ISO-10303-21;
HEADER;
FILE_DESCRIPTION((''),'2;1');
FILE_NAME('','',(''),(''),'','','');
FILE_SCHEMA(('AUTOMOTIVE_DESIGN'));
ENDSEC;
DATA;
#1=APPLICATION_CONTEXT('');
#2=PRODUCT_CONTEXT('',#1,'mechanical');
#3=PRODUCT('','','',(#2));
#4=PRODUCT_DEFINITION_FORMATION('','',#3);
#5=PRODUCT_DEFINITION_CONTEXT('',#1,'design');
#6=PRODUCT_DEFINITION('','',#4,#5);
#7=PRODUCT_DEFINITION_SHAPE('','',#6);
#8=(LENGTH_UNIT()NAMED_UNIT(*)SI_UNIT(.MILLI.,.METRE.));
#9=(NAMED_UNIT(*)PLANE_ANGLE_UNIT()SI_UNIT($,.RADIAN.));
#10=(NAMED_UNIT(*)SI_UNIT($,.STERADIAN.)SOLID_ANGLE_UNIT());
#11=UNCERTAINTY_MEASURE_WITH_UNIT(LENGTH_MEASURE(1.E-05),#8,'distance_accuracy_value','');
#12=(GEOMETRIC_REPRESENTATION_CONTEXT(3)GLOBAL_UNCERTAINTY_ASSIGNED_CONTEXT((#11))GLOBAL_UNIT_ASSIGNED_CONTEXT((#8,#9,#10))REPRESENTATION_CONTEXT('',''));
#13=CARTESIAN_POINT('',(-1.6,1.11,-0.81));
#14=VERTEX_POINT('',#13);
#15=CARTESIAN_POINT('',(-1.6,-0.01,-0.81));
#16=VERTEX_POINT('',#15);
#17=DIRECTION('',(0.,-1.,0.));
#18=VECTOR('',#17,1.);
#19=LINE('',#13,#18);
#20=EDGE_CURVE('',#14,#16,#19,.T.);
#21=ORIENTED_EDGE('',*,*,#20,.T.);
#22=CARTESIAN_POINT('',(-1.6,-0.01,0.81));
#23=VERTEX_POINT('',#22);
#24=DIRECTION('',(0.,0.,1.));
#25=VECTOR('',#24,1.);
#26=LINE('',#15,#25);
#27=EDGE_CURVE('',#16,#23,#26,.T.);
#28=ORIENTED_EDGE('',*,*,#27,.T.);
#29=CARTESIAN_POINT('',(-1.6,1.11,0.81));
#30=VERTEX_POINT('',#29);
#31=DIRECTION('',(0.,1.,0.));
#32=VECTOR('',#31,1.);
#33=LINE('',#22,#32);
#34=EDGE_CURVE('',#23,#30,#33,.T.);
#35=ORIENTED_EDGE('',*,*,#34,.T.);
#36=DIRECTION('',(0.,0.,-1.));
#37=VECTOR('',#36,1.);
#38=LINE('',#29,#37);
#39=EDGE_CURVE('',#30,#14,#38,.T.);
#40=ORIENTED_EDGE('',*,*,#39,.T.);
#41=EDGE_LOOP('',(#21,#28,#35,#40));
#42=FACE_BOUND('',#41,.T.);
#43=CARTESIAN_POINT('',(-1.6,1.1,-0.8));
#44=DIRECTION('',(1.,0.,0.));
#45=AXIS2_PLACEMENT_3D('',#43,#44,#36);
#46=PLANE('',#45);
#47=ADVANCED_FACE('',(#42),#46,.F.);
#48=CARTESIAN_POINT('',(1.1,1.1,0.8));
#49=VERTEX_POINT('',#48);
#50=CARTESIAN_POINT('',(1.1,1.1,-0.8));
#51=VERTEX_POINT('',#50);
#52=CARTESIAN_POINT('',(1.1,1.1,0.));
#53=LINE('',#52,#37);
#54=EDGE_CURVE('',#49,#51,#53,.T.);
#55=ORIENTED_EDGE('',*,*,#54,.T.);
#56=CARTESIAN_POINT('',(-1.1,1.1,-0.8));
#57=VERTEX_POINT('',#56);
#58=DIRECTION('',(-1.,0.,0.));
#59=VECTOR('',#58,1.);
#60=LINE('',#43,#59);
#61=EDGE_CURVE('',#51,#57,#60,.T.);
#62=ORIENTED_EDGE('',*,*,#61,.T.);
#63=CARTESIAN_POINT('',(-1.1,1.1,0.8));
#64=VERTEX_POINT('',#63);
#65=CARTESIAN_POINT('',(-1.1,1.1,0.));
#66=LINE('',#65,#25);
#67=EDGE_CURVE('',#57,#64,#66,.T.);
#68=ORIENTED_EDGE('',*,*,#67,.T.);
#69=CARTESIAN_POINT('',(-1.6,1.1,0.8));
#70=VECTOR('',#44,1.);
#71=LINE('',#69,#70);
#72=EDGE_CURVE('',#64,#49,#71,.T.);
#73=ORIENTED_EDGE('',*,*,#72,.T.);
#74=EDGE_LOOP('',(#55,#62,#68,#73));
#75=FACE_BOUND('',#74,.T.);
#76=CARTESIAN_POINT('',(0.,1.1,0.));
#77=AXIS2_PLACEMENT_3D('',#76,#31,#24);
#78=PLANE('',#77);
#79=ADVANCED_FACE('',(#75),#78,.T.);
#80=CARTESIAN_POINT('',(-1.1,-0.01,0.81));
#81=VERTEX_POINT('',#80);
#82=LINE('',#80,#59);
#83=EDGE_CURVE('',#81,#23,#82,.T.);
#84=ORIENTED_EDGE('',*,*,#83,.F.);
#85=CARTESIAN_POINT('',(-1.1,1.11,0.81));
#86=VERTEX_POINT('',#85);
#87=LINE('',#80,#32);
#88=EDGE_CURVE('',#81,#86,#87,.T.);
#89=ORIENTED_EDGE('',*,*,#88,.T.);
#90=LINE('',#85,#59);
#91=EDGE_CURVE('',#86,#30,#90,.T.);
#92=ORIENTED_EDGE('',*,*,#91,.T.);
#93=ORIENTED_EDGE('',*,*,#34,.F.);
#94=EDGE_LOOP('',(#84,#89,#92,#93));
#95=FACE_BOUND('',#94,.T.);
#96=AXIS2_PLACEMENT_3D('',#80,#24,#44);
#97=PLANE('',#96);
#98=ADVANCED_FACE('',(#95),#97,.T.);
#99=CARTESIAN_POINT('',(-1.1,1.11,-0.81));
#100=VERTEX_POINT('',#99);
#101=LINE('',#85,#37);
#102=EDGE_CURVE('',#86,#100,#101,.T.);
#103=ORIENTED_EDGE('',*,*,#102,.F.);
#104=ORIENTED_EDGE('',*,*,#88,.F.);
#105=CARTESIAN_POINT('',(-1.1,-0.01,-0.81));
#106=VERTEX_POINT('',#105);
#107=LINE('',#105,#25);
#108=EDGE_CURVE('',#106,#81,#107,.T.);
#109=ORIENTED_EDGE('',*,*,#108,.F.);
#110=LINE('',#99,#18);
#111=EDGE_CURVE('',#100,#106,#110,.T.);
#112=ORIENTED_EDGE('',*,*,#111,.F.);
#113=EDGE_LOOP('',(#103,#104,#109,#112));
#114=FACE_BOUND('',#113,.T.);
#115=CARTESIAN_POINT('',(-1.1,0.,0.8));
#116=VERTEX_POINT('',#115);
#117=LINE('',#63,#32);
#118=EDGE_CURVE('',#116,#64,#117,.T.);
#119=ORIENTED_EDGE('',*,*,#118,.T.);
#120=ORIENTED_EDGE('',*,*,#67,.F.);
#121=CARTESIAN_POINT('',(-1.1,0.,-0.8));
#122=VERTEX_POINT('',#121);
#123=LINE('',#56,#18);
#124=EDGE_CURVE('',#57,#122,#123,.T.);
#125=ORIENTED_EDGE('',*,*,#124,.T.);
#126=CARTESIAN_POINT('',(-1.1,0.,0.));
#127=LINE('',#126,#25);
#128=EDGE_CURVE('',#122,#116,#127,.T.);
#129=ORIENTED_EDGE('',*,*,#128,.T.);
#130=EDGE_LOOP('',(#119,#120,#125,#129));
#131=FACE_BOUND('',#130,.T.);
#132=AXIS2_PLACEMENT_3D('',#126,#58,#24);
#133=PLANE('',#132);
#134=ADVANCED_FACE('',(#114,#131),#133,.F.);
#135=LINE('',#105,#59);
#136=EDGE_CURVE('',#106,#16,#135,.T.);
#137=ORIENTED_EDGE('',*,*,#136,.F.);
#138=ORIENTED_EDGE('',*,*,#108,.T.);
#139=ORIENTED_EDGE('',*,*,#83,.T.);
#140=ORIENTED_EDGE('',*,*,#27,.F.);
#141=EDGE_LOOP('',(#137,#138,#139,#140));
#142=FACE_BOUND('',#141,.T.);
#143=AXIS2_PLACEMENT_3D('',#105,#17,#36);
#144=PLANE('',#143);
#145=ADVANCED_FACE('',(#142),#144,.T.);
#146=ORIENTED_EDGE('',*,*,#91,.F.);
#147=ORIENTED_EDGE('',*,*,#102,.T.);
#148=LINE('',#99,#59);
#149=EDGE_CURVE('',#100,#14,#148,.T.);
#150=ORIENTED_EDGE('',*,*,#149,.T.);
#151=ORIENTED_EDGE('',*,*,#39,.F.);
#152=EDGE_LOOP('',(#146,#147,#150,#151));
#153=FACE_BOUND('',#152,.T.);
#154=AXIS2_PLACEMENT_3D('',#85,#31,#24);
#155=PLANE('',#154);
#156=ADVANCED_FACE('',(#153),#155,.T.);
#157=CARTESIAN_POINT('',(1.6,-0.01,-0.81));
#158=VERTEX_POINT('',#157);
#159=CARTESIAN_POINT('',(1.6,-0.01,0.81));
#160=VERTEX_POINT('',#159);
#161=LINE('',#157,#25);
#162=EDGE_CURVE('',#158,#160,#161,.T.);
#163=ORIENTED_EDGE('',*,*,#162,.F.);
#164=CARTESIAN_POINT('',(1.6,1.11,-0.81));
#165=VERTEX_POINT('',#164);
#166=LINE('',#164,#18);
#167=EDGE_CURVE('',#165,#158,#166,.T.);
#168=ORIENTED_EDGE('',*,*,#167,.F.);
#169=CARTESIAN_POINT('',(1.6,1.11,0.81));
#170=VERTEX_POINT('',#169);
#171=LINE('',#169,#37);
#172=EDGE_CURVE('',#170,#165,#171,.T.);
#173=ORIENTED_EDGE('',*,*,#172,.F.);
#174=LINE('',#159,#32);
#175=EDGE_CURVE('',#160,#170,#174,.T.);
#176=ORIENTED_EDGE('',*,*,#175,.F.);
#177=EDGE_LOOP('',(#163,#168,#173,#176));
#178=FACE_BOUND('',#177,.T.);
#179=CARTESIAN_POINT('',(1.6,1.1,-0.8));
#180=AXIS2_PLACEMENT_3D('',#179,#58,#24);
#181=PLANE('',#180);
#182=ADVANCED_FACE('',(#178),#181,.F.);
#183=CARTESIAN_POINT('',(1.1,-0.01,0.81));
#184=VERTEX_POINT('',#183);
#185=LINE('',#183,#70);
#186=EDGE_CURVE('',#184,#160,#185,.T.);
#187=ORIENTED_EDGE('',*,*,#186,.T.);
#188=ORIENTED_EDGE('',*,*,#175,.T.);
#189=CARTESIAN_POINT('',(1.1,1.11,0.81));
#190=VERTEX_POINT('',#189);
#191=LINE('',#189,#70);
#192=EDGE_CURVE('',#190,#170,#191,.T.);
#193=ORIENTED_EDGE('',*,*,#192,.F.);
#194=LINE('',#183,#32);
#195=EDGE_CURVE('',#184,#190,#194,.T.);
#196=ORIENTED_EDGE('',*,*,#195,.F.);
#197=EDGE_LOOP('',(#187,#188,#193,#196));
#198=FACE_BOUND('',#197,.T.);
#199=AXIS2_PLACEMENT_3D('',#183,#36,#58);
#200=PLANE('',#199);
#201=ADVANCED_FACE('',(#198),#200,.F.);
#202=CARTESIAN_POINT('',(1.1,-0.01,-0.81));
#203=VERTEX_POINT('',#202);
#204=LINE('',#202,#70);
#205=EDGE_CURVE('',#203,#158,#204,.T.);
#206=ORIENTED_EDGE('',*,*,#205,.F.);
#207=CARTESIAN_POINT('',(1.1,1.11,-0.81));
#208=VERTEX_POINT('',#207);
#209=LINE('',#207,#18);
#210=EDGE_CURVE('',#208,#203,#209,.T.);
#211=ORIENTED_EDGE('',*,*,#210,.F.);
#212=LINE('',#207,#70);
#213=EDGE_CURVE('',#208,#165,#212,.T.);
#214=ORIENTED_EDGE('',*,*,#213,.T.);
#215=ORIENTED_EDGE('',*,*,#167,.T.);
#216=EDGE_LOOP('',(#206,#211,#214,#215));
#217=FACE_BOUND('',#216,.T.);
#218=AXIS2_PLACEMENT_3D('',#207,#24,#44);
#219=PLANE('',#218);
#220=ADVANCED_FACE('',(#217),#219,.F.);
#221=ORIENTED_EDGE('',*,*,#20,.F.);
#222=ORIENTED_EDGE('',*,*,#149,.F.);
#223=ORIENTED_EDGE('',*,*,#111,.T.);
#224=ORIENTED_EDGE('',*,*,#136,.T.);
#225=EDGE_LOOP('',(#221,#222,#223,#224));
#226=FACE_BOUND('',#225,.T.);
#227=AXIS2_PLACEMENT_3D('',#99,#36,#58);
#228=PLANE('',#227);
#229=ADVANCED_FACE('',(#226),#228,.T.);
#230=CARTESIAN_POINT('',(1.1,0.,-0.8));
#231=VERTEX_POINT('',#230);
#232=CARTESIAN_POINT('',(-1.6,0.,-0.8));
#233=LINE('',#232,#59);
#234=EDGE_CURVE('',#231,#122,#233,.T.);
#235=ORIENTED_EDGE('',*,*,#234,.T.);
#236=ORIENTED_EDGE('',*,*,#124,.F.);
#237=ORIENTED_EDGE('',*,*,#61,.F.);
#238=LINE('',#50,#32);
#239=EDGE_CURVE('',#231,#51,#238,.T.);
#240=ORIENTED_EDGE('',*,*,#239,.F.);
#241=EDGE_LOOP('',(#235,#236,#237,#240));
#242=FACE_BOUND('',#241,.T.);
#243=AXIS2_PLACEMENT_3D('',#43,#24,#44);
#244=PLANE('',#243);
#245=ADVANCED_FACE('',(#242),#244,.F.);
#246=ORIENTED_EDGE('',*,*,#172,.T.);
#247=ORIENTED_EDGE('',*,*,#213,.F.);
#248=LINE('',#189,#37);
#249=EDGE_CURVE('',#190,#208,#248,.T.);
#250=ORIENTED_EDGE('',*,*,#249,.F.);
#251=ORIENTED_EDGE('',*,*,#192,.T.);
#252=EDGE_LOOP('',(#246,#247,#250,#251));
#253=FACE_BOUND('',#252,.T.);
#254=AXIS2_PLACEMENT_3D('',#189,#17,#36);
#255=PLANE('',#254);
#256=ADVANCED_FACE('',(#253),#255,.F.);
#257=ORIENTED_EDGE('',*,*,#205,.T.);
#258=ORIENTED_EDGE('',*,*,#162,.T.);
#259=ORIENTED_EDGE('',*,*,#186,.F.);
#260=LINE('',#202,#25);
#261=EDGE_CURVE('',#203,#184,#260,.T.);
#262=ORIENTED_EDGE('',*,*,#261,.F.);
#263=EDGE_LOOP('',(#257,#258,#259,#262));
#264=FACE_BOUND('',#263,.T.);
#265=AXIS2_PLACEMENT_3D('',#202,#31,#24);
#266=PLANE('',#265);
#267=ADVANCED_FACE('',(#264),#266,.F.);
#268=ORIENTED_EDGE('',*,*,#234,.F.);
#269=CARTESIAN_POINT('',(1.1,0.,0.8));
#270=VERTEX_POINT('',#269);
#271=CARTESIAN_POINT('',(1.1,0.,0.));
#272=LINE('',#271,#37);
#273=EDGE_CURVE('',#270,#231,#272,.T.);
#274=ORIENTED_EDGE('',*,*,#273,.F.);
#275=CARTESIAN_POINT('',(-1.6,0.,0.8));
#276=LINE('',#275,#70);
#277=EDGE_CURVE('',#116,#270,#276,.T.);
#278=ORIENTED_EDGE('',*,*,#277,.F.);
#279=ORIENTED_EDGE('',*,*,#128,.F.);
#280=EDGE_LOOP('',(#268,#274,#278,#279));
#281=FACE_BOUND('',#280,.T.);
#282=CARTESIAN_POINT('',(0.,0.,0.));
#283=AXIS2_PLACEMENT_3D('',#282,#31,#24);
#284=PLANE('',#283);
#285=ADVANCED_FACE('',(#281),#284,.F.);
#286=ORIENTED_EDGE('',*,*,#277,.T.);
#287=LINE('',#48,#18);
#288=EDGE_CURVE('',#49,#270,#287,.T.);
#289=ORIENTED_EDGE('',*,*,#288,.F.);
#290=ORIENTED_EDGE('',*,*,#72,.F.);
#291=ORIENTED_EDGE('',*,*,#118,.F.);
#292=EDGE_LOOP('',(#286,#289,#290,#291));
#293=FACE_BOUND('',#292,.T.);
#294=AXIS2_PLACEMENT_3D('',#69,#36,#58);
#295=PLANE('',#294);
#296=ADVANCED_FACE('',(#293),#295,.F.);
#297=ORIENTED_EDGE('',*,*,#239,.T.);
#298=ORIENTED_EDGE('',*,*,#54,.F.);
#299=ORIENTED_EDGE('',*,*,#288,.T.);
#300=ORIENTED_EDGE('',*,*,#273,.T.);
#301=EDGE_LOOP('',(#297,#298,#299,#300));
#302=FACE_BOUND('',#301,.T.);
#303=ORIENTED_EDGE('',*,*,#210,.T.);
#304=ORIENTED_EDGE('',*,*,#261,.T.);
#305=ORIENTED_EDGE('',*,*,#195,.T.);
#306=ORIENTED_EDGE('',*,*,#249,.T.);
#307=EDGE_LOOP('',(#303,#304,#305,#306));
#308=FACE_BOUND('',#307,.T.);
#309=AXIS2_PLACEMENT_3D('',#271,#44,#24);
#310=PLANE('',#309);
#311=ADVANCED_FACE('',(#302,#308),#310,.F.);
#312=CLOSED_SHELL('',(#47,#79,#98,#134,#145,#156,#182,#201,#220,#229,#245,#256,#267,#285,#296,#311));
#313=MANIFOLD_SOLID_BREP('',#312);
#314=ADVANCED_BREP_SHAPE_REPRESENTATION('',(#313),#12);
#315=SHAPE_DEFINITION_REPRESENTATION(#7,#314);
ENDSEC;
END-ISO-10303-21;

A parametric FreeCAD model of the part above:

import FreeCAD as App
import Part
import Sketcher

V = App.Vector


def add_polygon(sketch, points):
    """Adds a closed chain of lines whose ends are joined by coincident constraints."""
    first, n = sketch.GeometryCount, len(points)
    for a, b in zip(points, points[1:] + points[:1]):
        sketch.addGeometry(Part.LineSegment(App.Vector(*a, 0), App.Vector(*b, 0)), False)
    for i in range(n):
        sketch.addConstraint(Sketcher.Constraint("Coincident", first + i, 2, first + (i + 1) % n, 1))

doc = App.newDocument("Part")
body = doc.addObject("PartDesign::Body", "Body")

# Sketch on XZ plane
sketch1 = body.newObject("Sketcher::SketchObject", "Sketch")
sketch1.AttachmentSupport = (doc.getObject("XZ_Plane"), [""])
sketch1.MapMode = "FlatFace"
add_polygon(sketch1, [(-1.6, -0.8), (-1.6, 0.8), (1.6, 0.8), (1.6, -0.8)])  # lines 0-3
sketch1.addConstraint(Sketcher.Constraint("Vertical", 0))
sketch1.addConstraint(Sketcher.Constraint("Horizontal", 1))
sketch1.addConstraint(Sketcher.Constraint("Vertical", 2))
sketch1.addConstraint(Sketcher.Constraint("Horizontal", 3))
sketch1.addConstraint(Sketcher.Constraint("Symmetric", 0, 2, 2, 2, -1, 1))
sketch1.addConstraint(Sketcher.Constraint("DistanceX", 1, 1, 1, 2, 3.2))
sketch1.addConstraint(Sketcher.Constraint("DistanceY", 0, 1, 0, 2, 1.6))
pad1 = body.newObject("PartDesign::Pad", "Pad")
pad1.Profile = sketch1
pad1.Length = 1.1
pad1.Reversed = True

# Sketch on YZ plane
sketch2 = body.newObject("Sketcher::SketchObject", "Sketch001")
sketch2.AttachmentSupport = (doc.getObject("YZ_Plane"), [""])
sketch2.MapMode = "FlatFace"
sketch2.AttachmentOffset = App.Placement(V(0, 0, -1.6), App.Rotation())
add_polygon(sketch2, [(1.11, -0.81), (-0.01, -0.81), (-0.01, 0.81), (1.11, 0.81)])  # lines 0-3
sketch2.addConstraint(Sketcher.Constraint("Horizontal", 0))
sketch2.addConstraint(Sketcher.Constraint("Vertical", 1))
sketch2.addConstraint(Sketcher.Constraint("Horizontal", 2))
sketch2.addConstraint(Sketcher.Constraint("Vertical", 3))
sketch2.addConstraint(Sketcher.Constraint("DistanceX", 0, 2, 0, 1, 1.12))
sketch2.addConstraint(Sketcher.Constraint("DistanceY", 1, 1, 1, 2, 1.62))
sketch2.addConstraint(Sketcher.Constraint("DistanceX", 0, 2, -1, 1, 0.01))
sketch2.addConstraint(Sketcher.Constraint("DistanceY", 0, 2, -1, 1, 0.81))
pad2 = body.newObject("PartDesign::Pad", "Pad001")
pad2.Profile = sketch2
pad2.Length = 0.5
doc.recompute()

mirrored = body.newObject("PartDesign::Mirrored", "Mirrored")
mirrored.Originals = [pad2]
mirrored.MirrorPlane = (doc.getObject("YZ_Plane"), [""])
body.Tip = mirrored

doc.recompute()
